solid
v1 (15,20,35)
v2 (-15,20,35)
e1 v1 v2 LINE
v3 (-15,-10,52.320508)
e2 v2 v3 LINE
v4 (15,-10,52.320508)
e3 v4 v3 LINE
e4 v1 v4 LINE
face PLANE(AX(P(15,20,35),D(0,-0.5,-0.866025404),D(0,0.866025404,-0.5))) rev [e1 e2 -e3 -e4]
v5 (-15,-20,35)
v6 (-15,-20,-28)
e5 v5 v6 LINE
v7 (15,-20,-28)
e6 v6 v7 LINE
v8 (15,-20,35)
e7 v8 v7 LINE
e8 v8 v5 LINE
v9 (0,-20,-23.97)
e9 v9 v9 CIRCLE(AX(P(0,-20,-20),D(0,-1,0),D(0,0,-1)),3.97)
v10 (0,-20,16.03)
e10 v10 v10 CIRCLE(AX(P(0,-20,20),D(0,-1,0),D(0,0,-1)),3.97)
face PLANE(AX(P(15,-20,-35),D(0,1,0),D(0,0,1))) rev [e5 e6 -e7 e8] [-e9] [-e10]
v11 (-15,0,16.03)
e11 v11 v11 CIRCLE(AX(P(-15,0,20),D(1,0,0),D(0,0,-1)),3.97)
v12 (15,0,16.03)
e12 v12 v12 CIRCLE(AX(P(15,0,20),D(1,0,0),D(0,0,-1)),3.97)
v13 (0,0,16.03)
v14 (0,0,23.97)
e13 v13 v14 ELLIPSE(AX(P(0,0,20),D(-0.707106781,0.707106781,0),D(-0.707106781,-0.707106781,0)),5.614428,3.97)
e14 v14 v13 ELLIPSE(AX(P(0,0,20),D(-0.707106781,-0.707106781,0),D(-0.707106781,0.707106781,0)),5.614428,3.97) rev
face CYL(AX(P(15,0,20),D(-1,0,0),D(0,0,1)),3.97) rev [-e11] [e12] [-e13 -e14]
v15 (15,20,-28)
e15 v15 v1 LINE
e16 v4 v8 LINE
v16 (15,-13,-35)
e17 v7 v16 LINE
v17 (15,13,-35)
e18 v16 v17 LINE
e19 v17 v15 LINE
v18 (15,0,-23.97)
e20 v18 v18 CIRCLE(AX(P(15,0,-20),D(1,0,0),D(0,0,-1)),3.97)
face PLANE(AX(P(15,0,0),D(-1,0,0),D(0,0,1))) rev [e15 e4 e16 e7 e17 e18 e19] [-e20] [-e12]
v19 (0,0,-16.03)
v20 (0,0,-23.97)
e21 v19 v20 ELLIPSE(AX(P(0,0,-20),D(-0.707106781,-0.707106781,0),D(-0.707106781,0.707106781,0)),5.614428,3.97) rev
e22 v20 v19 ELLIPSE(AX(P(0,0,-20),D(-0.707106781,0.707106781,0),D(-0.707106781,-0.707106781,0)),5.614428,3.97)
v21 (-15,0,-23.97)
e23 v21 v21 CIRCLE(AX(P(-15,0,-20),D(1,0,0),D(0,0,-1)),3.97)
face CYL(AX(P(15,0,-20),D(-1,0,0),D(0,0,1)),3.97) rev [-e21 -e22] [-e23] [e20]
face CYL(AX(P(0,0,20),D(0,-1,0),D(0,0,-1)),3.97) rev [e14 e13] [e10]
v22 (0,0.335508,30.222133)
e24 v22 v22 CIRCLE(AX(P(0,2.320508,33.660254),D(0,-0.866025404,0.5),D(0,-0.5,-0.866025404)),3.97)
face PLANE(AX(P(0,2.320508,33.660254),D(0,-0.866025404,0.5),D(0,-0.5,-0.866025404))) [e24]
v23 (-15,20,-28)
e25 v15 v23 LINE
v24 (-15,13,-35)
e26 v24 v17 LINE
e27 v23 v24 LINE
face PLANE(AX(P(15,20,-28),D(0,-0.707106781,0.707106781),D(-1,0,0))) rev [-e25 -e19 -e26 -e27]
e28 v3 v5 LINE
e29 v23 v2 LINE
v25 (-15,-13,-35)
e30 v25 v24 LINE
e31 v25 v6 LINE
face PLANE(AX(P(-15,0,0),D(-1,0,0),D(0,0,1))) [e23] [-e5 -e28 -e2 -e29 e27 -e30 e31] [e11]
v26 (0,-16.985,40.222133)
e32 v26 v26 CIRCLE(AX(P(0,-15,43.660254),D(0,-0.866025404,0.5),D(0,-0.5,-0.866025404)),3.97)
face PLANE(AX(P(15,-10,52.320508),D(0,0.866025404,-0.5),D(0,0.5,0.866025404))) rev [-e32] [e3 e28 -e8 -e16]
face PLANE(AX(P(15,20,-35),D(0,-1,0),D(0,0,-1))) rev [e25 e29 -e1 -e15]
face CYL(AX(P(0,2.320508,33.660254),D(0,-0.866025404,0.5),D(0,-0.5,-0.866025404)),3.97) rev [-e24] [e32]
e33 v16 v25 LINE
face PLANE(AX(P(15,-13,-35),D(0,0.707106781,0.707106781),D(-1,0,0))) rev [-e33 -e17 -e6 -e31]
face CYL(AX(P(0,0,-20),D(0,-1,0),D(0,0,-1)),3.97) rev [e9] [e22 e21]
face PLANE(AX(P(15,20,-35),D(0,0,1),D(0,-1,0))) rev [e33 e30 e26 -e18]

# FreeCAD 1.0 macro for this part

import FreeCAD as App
import Part
import Sketcher
Q = App.Units.Quantity


def edges_at(feature, points):
    """Names of the edges that pass closest to the given points."""
    edges = feature.Shape.Edges
    near = lambda p: min(range(len(edges)), key=lambda i: edges[i].distToShape(Part.Vertex(*p))[0])
    return sorted({f"Edge{near(p) + 1}" for p in points})


def add_polygon(sketch, points):
    """Adds a closed chain of lines whose ends are joined by coincident constraints."""
    first, n = sketch.GeometryCount, len(points)
    for a, b in zip(points, points[1:] + points[:1]):
        sketch.addGeometry(Part.LineSegment(App.Vector(*a, 0), App.Vector(*b, 0)), False)
    for i in range(n):
        sketch.addConstraint(Sketcher.Constraint("Coincident", first + i, 2, first + (i + 1) % n, 1))

doc = App.newDocument("Part")
body = doc.addObject("PartDesign::Body", "Body")

sketch1 = body.newObject("Sketcher::SketchObject", "Sketch")
sketch1.AttachmentSupport = (doc.getObject("YZ_Plane"), [""])
sketch1.MapMode = "FlatFace"
add_polygon(sketch1, [(20, -35), (20, 35), (-10, 52.320508), (-20, 35), (-20, -35)])
sketch1.addGeometry(Part.Circle(App.Vector(0, 20, 0), App.Vector(0, 0, 1), 3.97), False)
sketch1.addGeometry(Part.Circle(App.Vector(0, -20, 0), App.Vector(0, 0, 1), 3.97), False)
sketch1.addConstraint([
    Sketcher.Constraint("Vertical", 0),
    Sketcher.Constraint("Vertical", 3),
    Sketcher.Constraint("Horizontal", 4),
    Sketcher.Constraint("Equal", 5, 6),
    Sketcher.Constraint("Symmetric", 5, 3, 6, 3, -1, 1),
    Sketcher.Constraint("Symmetric", 0, 2, 3, 2, -1, 1),
    Sketcher.Constraint("PointOnObject", 5, 3, -2),
    Sketcher.Constraint("Perpendicular", 1, 2),
    Sketcher.Constraint("Horizontal", 0, 2, 2, 2),
    Sketcher.Constraint("Diameter", 5, Q("7.94 mm")),
    Sketcher.Constraint("DistanceX", 4, 1, 4, 2, Q("40 mm")),
    Sketcher.Constraint("DistanceY", 0, 1, 0, 2, Q("70 mm")),
    Sketcher.Constraint("Angle", 1, Q("150 deg")),
    Sketcher.Constraint("DistanceY", -1, 1, 5, 3, Q("20 mm")),
])
pad1 = body.newObject("PartDesign::Pad", "Pad")
pad1.Profile = sketch1
pad1.Length = 30
pad1.Midplane = True

sketch2 = body.newObject("Sketcher::SketchObject", "Sketch001")
sketch2.AttachmentSupport = (doc.getObject("XZ_Plane"), [""])
sketch2.MapMode = "FlatFace"
sketch2.AttachmentOffset = App.Placement(App.Vector(0, 0, 20), App.Rotation())
sketch2.addGeometry([
    Part.Circle(App.Vector(0, 20, 0), App.Vector(0, 0, 1), 3.97),
    Part.Circle(App.Vector(0, -20, 0), App.Vector(0, 0, 1), 3.97),
], False)
sketch2.addConstraint([
    Sketcher.Constraint("Equal", 0, 1),
    Sketcher.Constraint("Symmetric", 0, 3, 1, 3, -1, 1),
    Sketcher.Constraint("PointOnObject", 0, 3, -2),
    Sketcher.Constraint("Diameter", 0, Q("7.94 mm")),
    Sketcher.Constraint("DistanceY", -1, 1, 0, 3, Q("20 mm")),
])
pocket1 = body.newObject("PartDesign::Pocket", "Pocket")
pocket1.Profile = sketch2
pocket1.Length = 20
doc.recompute()

chamfer = body.newObject("PartDesign::Chamfer", "Chamfer")
chamfer.Base = (pocket1, edges_at(pocket1, [(0, 20, -35), (0, -20, -35)]))
chamfer.Size = 7

sketch3 = body.newObject("Sketcher::SketchObject", "Sketch002")
sketch3.Placement = App.Placement(App.Vector(0, -30.155445, 17.410254), App.Rotation(App.Vector(1, 0, 0), App.Vector(0, 0.5, 0.866025404), App.Vector(0, -0.866025404, 0.5), "ZXY"))
sketch3.addGeometry(Part.Circle(App.Vector(0, 30.310889, 0), App.Vector(0, 0, 1), 3.97), False)
sketch3.addConstraint([
    Sketcher.Constraint("PointOnObject", 0, 3, -2),
    Sketcher.Constraint("Diameter", 0, Q("7.94 mm")),
    Sketcher.Constraint("DistanceY", -1, 1, 0, 3, Q("30.310889 mm")),
])
pocket2 = body.newObject("PartDesign::Pocket", "Pocket001")
pocket2.Profile = sketch3
pocket2.Length = 20

doc.recompute()
